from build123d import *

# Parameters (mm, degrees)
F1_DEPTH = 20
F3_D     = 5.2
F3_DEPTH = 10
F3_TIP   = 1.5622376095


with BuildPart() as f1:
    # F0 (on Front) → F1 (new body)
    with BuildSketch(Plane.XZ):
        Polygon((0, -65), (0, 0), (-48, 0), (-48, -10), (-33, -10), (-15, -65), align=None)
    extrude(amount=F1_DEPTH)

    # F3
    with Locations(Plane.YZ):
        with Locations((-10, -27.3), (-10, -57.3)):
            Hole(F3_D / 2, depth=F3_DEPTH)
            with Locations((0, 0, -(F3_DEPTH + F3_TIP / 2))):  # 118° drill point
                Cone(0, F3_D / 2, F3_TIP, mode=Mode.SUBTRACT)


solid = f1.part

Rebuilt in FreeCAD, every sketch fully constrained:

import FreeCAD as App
import Part
import Sketcher
Q = App.Units.Quantity


def add_polygon(sketch, points):
    """Adds a closed chain of lines whose ends are joined by coincident constraints."""
    first, n = sketch.GeometryCount, len(points)
    for a, b in zip(points, points[1:] + points[:1]):
        sketch.addGeometry(Part.LineSegment(App.Vector(*a, 0), App.Vector(*b, 0)), False)
    for i in range(n):
        sketch.addConstraint(Sketcher.Constraint("Coincident", first + i, 2, first + (i + 1) % n, 1))

doc = App.newDocument("Part")
params = doc.addObject("Spreadsheet::Sheet", "Params")
for row, (alias, value) in enumerate([
    ("sketch1_width", "48 mm"),
    ("sketch1_width2", "15 mm"),
    ("sketch1_height", "65 mm"),
    ("sketch1_height2", "10 mm"),
    ("pad1_length", "20 mm"),
    ("sketch2_diameter", "5.2 mm"),
    ("hole_diameter", "5.2 mm"),
    ("hole_depth", "10 mm"),
], start=1):
    params.set(f"A{row}", alias)
    params.set(f"B{row}", "=" + value)
    params.setAlias(f"B{row}", alias)

body = doc.addObject("PartDesign::Body", "Body")

# Sketch on XZ plane
sketch1 = doc.addObject("Sketcher::SketchObject", "Sketch")
body.addObject(sketch1)
sketch1.AttachmentSupport = (doc.XZ_Plane, [""])
sketch1.MapMode = "FlatFace"
add_polygon(sketch1, [(0, -65), (0, 0), (-48, 0), (-48, -10), (-33, -10), (-15, -65)])  # lines 0-5
sketch1.addConstraint(Sketcher.Constraint("Vertical", 0))
sketch1.addConstraint(Sketcher.Constraint("Horizontal", 1))
sketch1.addConstraint(Sketcher.Constraint("Vertical", 2))
sketch1.addConstraint(Sketcher.Constraint("Horizontal", 3))
sketch1.addConstraint(Sketcher.Constraint("Horizontal", 5))
sketch1.addConstraint(Sketcher.Constraint("Coincident", 0, 2, -1, 1))
sketch1.addConstraint(Sketcher.Constraint("Equal", 3, 5))
sketch1.addConstraint(Sketcher.Constraint("DistanceX", 1, 2, 1, 1, Q("48 mm")))
sketch1.addConstraint(Sketcher.Constraint("DistanceX", 3, 1, 3, 2, Q("15 mm")))
sketch1.addConstraint(Sketcher.Constraint("DistanceY", 0, 1, 0, 2, Q("65 mm")))
sketch1.addConstraint(Sketcher.Constraint("DistanceY", 2, 2, 2, 1, Q("10 mm")))
sketch1.setExpression("Constraints[13]", "Params.sketch1_width")
sketch1.setExpression("Constraints[14]", "Params.sketch1_width2")
sketch1.setExpression("Constraints[15]", "Params.sketch1_height")
sketch1.setExpression("Constraints[16]", "Params.sketch1_height2")
pad1 = doc.addObject("PartDesign::Pad", "Pad")
body.addObject(pad1)
pad1.Profile = sketch1
pad1.setExpression("Length", "Params.pad1_length")

# Sketch on YZ plane
sketch2 = doc.addObject("Sketcher::SketchObject", "Sketch001")
body.addObject(sketch2)
sketch2.AttachmentSupport = (doc.YZ_Plane, [""])
sketch2.MapMode = "FlatFace"
sketch2.addGeometry(Part.Circle(App.Vector(-10, -27.3, 0), App.Vector(0, 0, 1), 2.6), False)
sketch2.addGeometry(Part.Circle(App.Vector(-10, -57.3, 0), App.Vector(0, 0, 1), 2.6), False)
sketch2.addConstraint(Sketcher.Constraint("Equal", 0, 1))
sketch2.addConstraint(Sketcher.Constraint("Vertical", 0, 3, 1, 3))
sketch2.addConstraint(Sketcher.Constraint("Diameter", 0, Q("5.2 mm")))
sketch2.addConstraint(Sketcher.Constraint("DistanceX", 0, 3, -1, 1, Q("10 mm")))
sketch2.addConstraint(Sketcher.Constraint("DistanceY", 1, 3, 0, 3, Q("30 mm")))
sketch2.addConstraint(Sketcher.Constraint("DistanceY", 0, 3, -1, 1, Q("27.3 mm")))
sketch2.setExpression("Constraints[2]", "Params.sketch2_diameter")
doc.recompute()
hole = doc.addObject("PartDesign::Hole", "Hole")
body.addObject(hole)
hole.Profile = sketch2
hole.ThreadType = "None"
hole.setExpression("Diameter", "Params.hole_diameter")
hole.DepthType = "Dimension"
hole.setExpression("Depth", "Params.hole_depth")
hole.DrillPoint = "Angled"
hole.DrillPointAngle = 118

doc.recompute()
